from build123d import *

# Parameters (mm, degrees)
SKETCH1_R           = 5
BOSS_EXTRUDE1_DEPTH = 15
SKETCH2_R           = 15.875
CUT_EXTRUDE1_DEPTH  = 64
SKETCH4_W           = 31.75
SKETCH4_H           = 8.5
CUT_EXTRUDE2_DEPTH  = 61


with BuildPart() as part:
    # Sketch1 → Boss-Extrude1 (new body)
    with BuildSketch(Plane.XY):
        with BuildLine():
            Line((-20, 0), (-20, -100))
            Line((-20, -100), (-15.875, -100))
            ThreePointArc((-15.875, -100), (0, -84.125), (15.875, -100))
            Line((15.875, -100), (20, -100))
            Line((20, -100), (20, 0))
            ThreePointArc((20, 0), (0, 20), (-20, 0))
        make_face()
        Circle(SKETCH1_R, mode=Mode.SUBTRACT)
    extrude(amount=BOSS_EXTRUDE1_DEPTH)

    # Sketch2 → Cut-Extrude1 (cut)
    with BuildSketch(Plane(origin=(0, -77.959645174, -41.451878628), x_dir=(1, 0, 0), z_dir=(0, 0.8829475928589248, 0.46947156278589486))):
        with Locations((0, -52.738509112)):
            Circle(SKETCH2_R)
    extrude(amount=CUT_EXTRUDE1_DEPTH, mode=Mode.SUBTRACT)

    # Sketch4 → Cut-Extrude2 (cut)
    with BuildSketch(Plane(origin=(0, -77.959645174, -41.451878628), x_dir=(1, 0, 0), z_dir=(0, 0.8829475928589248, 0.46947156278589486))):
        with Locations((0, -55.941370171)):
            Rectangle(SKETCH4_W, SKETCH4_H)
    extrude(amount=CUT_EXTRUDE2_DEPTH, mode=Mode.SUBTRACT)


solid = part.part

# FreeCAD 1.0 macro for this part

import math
import FreeCAD as App
import Part
import Sketcher
Q = App.Units.Quantity

doc = App.newDocument("Part")
params = doc.addObject("Spreadsheet::Sheet", "Params")
for row, (alias, value) in enumerate([
    ("sketch1_diameter", "10 mm"),
    ("sketch1_radius", "20 mm"),
    ("sketch1_height", "100 mm"),
    ("pad1_length", "15 mm"),
    ("sketch2_diameter", "31.75 mm"),
    ("pocket1_length", "64 mm"),
    ("sketch3_height", "8.5 mm"),
    ("sketch3_width", "31.75 mm"),
    ("pocket2_length", "61 mm"),
], start=1):
    params.set(f"A{row}", alias)
    params.set(f"B{row}", "=" + value)
    params.setAlias(f"B{row}", alias)

body = doc.addObject("PartDesign::Body", "Body")

# Sketch on XY plane
sketch1 = doc.addObject("Sketcher::SketchObject", "Sketch")
body.addObject(sketch1)
sketch1.AttachmentSupport = (doc.XY_Plane, [""])
sketch1.MapMode = "FlatFace"
sketch1.addGeometry([
    Part.LineSegment(App.Vector(-20, 0, 0), App.Vector(-20, -100, 0)),  # 0
    Part.LineSegment(App.Vector(-20, -100, 0), App.Vector(-15.9, -100, 0)),  # 1
    Part.ArcOfCircle(Part.Circle(App.Vector(0, -100, 0), App.Vector(0, 0, 1), 15.9), math.radians(0), math.radians(180)),  # 2
    Part.LineSegment(App.Vector(15.9, -100, 0), App.Vector(20, -100, 0)),  # 3
    Part.LineSegment(App.Vector(20, -100, 0), App.Vector(20, 0, 0)),  # 4
    Part.ArcOfCircle(Part.Circle(App.Vector(0, 0, 0), App.Vector(0, 0, 1), 20), math.radians(0), math.radians(180)),  # 5
    Part.Circle(App.Vector(0, 0, 0), App.Vector(0, 0, 1), 5),  # 6
], False)
sketch1.addConstraint([
    Sketcher.Constraint("Coincident", 0, 2, 1, 1),
    Sketcher.Constraint("Coincident", 1, 2, 2, 2),
    Sketcher.Constraint("Coincident", 2, 1, 3, 1),
    Sketcher.Constraint("Coincident", 3, 2, 4, 1),
    Sketcher.Constraint("Tangent", 4, 2, 5, 1),
    Sketcher.Constraint("Tangent", 5, 2, 0, 1),
    Sketcher.Constraint("Vertical", 0),
    Sketcher.Constraint("Horizontal", 1),
    Sketcher.Constraint("Horizontal", 3),
    Sketcher.Constraint("Vertical", 4),
    Sketcher.Constraint("Coincident", 5, 3, -1, 1),
    Sketcher.Constraint("Coincident", 6, 3, -1, 1),
    Sketcher.Constraint("Symmetric", 1, 2, 2, 1, -2),
    Sketcher.Constraint("Horizontal", 2, 3, 0, 2),
    Sketcher.Constraint("Diameter", 6, Q("10 mm")),
    Sketcher.Constraint("Radius", 5, Q("20 mm")),
    Sketcher.Constraint("DistanceY", 0, 2, 0, 1, Q("100 mm")),
    Sketcher.Constraint("Radius", 2, Q("15.875 mm")),
])
sketch1.setExpression("Constraints[14]", "Params.sketch1_diameter")
sketch1.setExpression("Constraints[15]", "Params.sketch1_radius")
sketch1.setExpression("Constraints[16]", "Params.sketch1_height")
pad1 = doc.addObject("PartDesign::Pad", "Pad")
body.addObject(pad1)
pad1.Profile = sketch1
pad1.setExpression("Length", "Params.pad1_length")

# Sketch on an angled plane
sketch2 = doc.addObject("Sketcher::SketchObject", "Sketch001")
body.addObject(sketch2)
sketch2.Placement = App.Placement(App.Vector(0, -77.959645, -41.451879), App.Rotation(App.Vector(1, 0, 0), App.Vector(0, 0.469471563, -0.882947593), App.Vector(0, 0.882947593, 0.469471563), "ZXY"))
sketch2.addGeometry(Part.Circle(App.Vector(0, -53, 0), App.Vector(0, 0, 1), 16), False)
sketch2.addConstraint([
    Sketcher.Constraint("PointOnObject", 0, 3, -2),
    Sketcher.Constraint("Diameter", 0, Q("31.75 mm")),
    Sketcher.Constraint("DistanceY", 0, 3, -1, 1, Q("52.738509 mm")),
])
sketch2.setExpression("Constraints[1]", "Params.sketch2_diameter")
pocket1 = doc.addObject("PartDesign::Pocket", "Pocket")
body.addObject(pocket1)
pocket1.Profile = sketch2
pocket1.setExpression("Length", "Params.pocket1_length")
pocket1.Reversed = True

# Sketch on an angled plane
sketch3 = doc.addObject("Sketcher::SketchObject", "Sketch002")
body.addObject(sketch3)
sketch3.Placement = App.Placement(App.Vector(0, -77.959645, -41.451879), App.Rotation(App.Vector(1, 0, 0), App.Vector(0, 0.469471563, -0.882947593), App.Vector(0, 0.882947593, 0.469471563), "ZXY"))
sketch3.addGeometry([
    Part.LineSegment(App.Vector(-16, -52, 0), App.Vector(-16, -60, 0)),
    Part.LineSegment(App.Vector(-16, -60, 0), App.Vector(16, -60, 0)),
    Part.LineSegment(App.Vector(16, -60, 0), App.Vector(16, -52, 0)),
    Part.LineSegment(App.Vector(16, -52, 0), App.Vector(-16, -52, 0)),
], False)
sketch3.addConstraint([
    Sketcher.Constraint("Coincident", 0, 2, 1, 1),
    Sketcher.Constraint("Coincident", 1, 2, 2, 1),
    Sketcher.Constraint("Coincident", 2, 2, 3, 1),
    Sketcher.Constraint("Coincident", 3, 2, 0, 1),
    Sketcher.Constraint("Vertical", 0),
    Sketcher.Constraint("Horizontal", 1),
    Sketcher.Constraint("Vertical", 2),
    Sketcher.Constraint("Horizontal", 3),
    Sketcher.Constraint("DistanceY", 0, 2, 0, 1, Q("8.5 mm")),
    Sketcher.Constraint("DistanceX", 1, 1, 1, 2, Q("31.75 mm")),
    Sketcher.Constraint("DistanceX", 0, 2, -1, 1, Q("15.875 mm")),
    Sketcher.Constraint("DistanceY", 0, 2, -1, 1, Q("60.19137 mm")),
])
sketch3.setExpression("Constraints[8]", "Params.sketch3_height")
sketch3.setExpression("Constraints[9]", "Params.sketch3_width")
pocket2 = doc.addObject("PartDesign::Pocket", "Pocket001")
body.addObject(pocket2)
pocket2.Profile = sketch3
pocket2.setExpression("Length", "Params.pocket2_length")
pocket2.Reversed = True

doc.recompute()
